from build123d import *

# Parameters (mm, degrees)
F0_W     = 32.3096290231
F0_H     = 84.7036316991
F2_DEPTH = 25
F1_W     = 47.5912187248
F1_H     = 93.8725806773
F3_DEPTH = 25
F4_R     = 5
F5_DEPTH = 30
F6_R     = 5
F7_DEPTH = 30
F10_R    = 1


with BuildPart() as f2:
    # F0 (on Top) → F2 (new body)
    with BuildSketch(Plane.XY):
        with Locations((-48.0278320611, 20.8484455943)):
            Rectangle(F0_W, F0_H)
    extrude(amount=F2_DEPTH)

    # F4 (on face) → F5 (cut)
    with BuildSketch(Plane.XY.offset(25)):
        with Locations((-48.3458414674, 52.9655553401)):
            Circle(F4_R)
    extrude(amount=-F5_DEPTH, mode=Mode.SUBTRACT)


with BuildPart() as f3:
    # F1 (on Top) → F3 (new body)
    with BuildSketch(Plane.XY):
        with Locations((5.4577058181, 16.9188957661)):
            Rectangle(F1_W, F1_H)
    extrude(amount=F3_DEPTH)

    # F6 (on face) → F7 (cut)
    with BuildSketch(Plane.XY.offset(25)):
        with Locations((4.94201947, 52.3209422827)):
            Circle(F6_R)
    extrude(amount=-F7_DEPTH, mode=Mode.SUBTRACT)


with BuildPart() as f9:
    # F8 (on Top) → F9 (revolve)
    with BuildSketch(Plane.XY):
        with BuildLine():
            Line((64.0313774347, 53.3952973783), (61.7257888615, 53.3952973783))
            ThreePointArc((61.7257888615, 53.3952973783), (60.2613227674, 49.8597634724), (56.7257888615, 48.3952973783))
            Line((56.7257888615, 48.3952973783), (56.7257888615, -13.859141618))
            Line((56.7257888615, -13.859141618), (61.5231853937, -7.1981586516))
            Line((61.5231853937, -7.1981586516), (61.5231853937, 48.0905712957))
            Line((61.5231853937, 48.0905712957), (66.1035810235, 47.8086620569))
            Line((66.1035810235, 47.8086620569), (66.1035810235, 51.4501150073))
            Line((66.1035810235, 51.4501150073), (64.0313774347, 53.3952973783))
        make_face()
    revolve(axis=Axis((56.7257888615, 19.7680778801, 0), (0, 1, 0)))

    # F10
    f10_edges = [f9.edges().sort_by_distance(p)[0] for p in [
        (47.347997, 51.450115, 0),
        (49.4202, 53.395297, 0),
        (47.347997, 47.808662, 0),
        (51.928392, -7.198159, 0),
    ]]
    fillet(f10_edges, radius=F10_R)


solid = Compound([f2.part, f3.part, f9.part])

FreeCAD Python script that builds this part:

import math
import FreeCAD as App
import Part
import Sketcher
from FreeCAD import Vector
Q = App.Units.Quantity


def edges_at(feature, points):
    """Names of the edges that pass closest to the given points."""
    edges = feature.Shape.Edges
    near = lambda p: min(range(len(edges)), key=lambda i: edges[i].distToShape(Part.Vertex(*p))[0])
    return sorted({f"Edge{near(p) + 1}" for p in points})

doc = App.newDocument("Part")
body = doc.addObject("PartDesign::Body", "Body")

sketch1 = body.newObject("Sketcher::SketchObject", "Sketch")
sketch1.AttachmentSupport = (doc.getObject("XY_Plane"), [""])
sketch1.MapMode = "FlatFace"
sketch1.addGeometry([
    Part.LineSegment(Vector(-64, 63, 0), Vector(-64, -22, 0)),
    Part.LineSegment(Vector(-64, -22, 0), Vector(-32, -22, 0)),
    Part.LineSegment(Vector(-32, -22, 0), Vector(-32, 63, 0)),
    Part.LineSegment(Vector(-32, 63, 0), Vector(-64, 63, 0)),
], False)
sketch1.addConstraint([
    Sketcher.Constraint("Coincident", 0, 2, 1, 1),
    Sketcher.Constraint("Coincident", 1, 2, 2, 1),
    Sketcher.Constraint("Coincident", 2, 2, 3, 1),
    Sketcher.Constraint("Coincident", 3, 2, 0, 1),
    Sketcher.Constraint("Vertical", 0),
    Sketcher.Constraint("Horizontal", 1),
    Sketcher.Constraint("Vertical", 2),
    Sketcher.Constraint("Horizontal", 3),
    Sketcher.Constraint("DistanceX", 1, 1, 1, 2, Q("32.309629 mm")),
    Sketcher.Constraint("DistanceY", 0, 2, 0, 1, Q("84.703632 mm")),
    Sketcher.Constraint("DistanceY", 0, 2, -1, 1, Q("21.50337 mm")),
    Sketcher.Constraint("DistanceX", 0, 2, -1, 1, Q("64.182647 mm")),
])
pad1 = body.newObject("PartDesign::Pad", "Pad")
pad1.Profile = sketch1
pad1.Length = 25

sketch2 = body.newObject("Sketcher::SketchObject", "Sketch001")
sketch2.AttachmentSupport = (doc.getObject("XY_Plane"), [""])
sketch2.MapMode = "FlatFace"
sketch2.AttachmentOffset = App.Placement(Vector(0, 0, 25), App.Rotation())
sketch2.addGeometry(Part.Circle(Vector(-48, 53, 0), Vector(0, 0, 1), 5), False)
sketch2.addConstraint([
    Sketcher.Constraint("Diameter", 0, Q("10 mm")),
    Sketcher.Constraint("DistanceX", 0, 3, -1, 1, Q("48.345841 mm")),
    Sketcher.Constraint("DistanceY", -1, 1, 0, 3, Q("52.965555 mm")),
])
pocket1 = body.newObject("PartDesign::Pocket", "Pocket")
pocket1.Profile = sketch2
pocket1.Length = 30
body2 = doc.addObject("PartDesign::Body", "Body001")

sketch3 = body2.newObject("Sketcher::SketchObject", "Sketch002")
sketch3.AttachmentSupport = (doc.getObject("XY_Plane001"), [""])
sketch3.MapMode = "FlatFace"
sketch3.addGeometry([
    Part.LineSegment(Vector(-18, 64, 0), Vector(-18, -30, 0)),
    Part.LineSegment(Vector(-18, -30, 0), Vector(29, -30, 0)),
    Part.LineSegment(Vector(29, -30, 0), Vector(29, 64, 0)),
    Part.LineSegment(Vector(29, 64, 0), Vector(-18, 64, 0)),
], False)
sketch3.addConstraint([
    Sketcher.Constraint("Coincident", 0, 2, 1, 1),
    Sketcher.Constraint("Coincident", 1, 2, 2, 1),
    Sketcher.Constraint("Coincident", 2, 2, 3, 1),
    Sketcher.Constraint("Coincident", 3, 2, 0, 1),
    Sketcher.Constraint("Vertical", 0),
    Sketcher.Constraint("Horizontal", 1),
    Sketcher.Constraint("Vertical", 2),
    Sketcher.Constraint("Horizontal", 3),
    Sketcher.Constraint("DistanceX", 1, 1, 1, 2, Q("47.591219 mm")),
    Sketcher.Constraint("DistanceY", 0, 2, 0, 1, Q("93.872581 mm")),
    Sketcher.Constraint("DistanceX", 0, 2, -1, 1, Q("18.337904 mm")),
    Sketcher.Constraint("DistanceY", 0, 2, -1, 1, Q("30.017395 mm")),
])
pad2 = body2.newObject("PartDesign::Pad", "Pad001")
pad2.Profile = sketch3
pad2.Length = 25

sketch4 = body2.newObject("Sketcher::SketchObject", "Sketch003")
sketch4.AttachmentSupport = (doc.getObject("XY_Plane001"), [""])
sketch4.MapMode = "FlatFace"
sketch4.AttachmentOffset = App.Placement(Vector(0, 0, 25), App.Rotation())
sketch4.addGeometry(Part.Circle(Vector(5, 52, 0), Vector(0, 0, 1), 5), False)
sketch4.addConstraint([
    Sketcher.Constraint("Diameter", 0, Q("10 mm")),
    Sketcher.Constraint("DistanceX", -1, 1, 0, 3, Q("4.942019 mm")),
    Sketcher.Constraint("DistanceY", -1, 1, 0, 3, Q("52.320942 mm")),
])
pocket2 = body2.newObject("PartDesign::Pocket", "Pocket001")
pocket2.Profile = sketch4
pocket2.Length = 30
body3 = doc.addObject("PartDesign::Body", "Body002")

sketch5 = body3.newObject("Sketcher::SketchObject", "Sketch004")
sketch5.AttachmentSupport = (doc.getObject("XY_Plane002"), [""])
sketch5.MapMode = "FlatFace"
sketch5.addGeometry([
    Part.LineSegment(Vector(64, 53.4, 0), Vector(61.7, 53.4, 0)),
    Part.ArcOfCircle(Part.Circle(Vector(56.7, 53.4, 0), Vector(0, 0, 1), 5), math.radians(-90), math.radians(0)),
    Part.LineSegment(Vector(56.7, 48.4, 0), Vector(56.7, -13.9, 0)),
    Part.LineSegment(Vector(56.7, -13.9, 0), Vector(61.5, -7.2, 0)),
    Part.LineSegment(Vector(61.5, -7.2, 0), Vector(61.5, 48.1, 0)),
    Part.LineSegment(Vector(61.5, 48.1, 0), Vector(66.1, 47.8, 0)),
    Part.LineSegment(Vector(66.1, 47.8, 0), Vector(66.1, 51.5, 0)),
    Part.LineSegment(Vector(66.1, 51.5, 0), Vector(64, 53.4, 0)),
], False)
sketch5.addGeometry(Part.LineSegment(Vector(56.7, -13.9, 0), Vector(56.7, 53.4, 0)), True)
sketch5.addConstraint([
    Sketcher.Constraint("Coincident", 0, 2, 1, 2),
    Sketcher.Constraint("Coincident", 1, 1, 2, 1),
    Sketcher.Constraint("Coincident", 2, 2, 3, 1),
    Sketcher.Constraint("Coincident", 3, 2, 4, 1),
    Sketcher.Constraint("Coincident", 4, 2, 5, 1),
    Sketcher.Constraint("Coincident", 5, 2, 6, 1),
    Sketcher.Constraint("Coincident", 6, 2, 7, 1),
    Sketcher.Constraint("Coincident", 7, 2, 0, 1),
    Sketcher.Constraint("Horizontal", 0),
    Sketcher.Constraint("Vertical", 2),
    Sketcher.Constraint("Vertical", 4),
    Sketcher.Constraint("Vertical", 6),
    Sketcher.Constraint("Vertical", 8),
    Sketcher.Constraint("Coincident", 8, 1, 2, 2),
    Sketcher.Constraint("Coincident", 8, 2, 1, 3),
    Sketcher.Constraint("Horizontal", 1, 3, 0, 2),
    Sketcher.Constraint("Radius", 1, Q("5 mm")),
    Sketcher.Constraint("DistanceX", 0, 2, 0, 1, Q("2.305589 mm")),
    Sketcher.Constraint("DistanceY", 2, 2, 2, 1, Q("62.254439 mm")),
    Sketcher.Constraint("DistanceY", 4, 1, 4, 2, Q("55.28873 mm")),
    Sketcher.Constraint("Distance", 7, Q("2.84214 mm")),
    Sketcher.Constraint("DistanceY", 6, 1, 6, 2, Q("3.641453 mm")),
    Sketcher.Constraint("DistanceX", -1, 1, 1, 3, Q("56.725789 mm")),
    Sketcher.Constraint("DistanceY", 2, 2, -1, 1, Q("13.859142 mm")),
    Sketcher.Constraint("DistanceY", 3, 2, -1, 1, Q("7.198159 mm")),
    Sketcher.Constraint("DistanceX", -1, 1, 5, 2, Q("66.103581 mm")),
    Sketcher.Constraint("Distance", 3, Q("8.208758 mm")),
])
revolution = body3.newObject("PartDesign::Revolution", "Revolution")
revolution.Profile = sketch5
revolution.ReferenceAxis = (sketch5, ["Axis0"])
revolution.Angle = 360
doc.recompute()

fillet = body3.newObject("PartDesign::Fillet", "Fillet")
fillet.Base = (revolution, edges_at(revolution, [
    (47.348, 51.45, 0),
    (49.42, 53.395, 0),
    (47.348, 47.809, 0),
    (51.928, -7.198, 0),
]))
fillet.Radius = 1

doc.recompute()
